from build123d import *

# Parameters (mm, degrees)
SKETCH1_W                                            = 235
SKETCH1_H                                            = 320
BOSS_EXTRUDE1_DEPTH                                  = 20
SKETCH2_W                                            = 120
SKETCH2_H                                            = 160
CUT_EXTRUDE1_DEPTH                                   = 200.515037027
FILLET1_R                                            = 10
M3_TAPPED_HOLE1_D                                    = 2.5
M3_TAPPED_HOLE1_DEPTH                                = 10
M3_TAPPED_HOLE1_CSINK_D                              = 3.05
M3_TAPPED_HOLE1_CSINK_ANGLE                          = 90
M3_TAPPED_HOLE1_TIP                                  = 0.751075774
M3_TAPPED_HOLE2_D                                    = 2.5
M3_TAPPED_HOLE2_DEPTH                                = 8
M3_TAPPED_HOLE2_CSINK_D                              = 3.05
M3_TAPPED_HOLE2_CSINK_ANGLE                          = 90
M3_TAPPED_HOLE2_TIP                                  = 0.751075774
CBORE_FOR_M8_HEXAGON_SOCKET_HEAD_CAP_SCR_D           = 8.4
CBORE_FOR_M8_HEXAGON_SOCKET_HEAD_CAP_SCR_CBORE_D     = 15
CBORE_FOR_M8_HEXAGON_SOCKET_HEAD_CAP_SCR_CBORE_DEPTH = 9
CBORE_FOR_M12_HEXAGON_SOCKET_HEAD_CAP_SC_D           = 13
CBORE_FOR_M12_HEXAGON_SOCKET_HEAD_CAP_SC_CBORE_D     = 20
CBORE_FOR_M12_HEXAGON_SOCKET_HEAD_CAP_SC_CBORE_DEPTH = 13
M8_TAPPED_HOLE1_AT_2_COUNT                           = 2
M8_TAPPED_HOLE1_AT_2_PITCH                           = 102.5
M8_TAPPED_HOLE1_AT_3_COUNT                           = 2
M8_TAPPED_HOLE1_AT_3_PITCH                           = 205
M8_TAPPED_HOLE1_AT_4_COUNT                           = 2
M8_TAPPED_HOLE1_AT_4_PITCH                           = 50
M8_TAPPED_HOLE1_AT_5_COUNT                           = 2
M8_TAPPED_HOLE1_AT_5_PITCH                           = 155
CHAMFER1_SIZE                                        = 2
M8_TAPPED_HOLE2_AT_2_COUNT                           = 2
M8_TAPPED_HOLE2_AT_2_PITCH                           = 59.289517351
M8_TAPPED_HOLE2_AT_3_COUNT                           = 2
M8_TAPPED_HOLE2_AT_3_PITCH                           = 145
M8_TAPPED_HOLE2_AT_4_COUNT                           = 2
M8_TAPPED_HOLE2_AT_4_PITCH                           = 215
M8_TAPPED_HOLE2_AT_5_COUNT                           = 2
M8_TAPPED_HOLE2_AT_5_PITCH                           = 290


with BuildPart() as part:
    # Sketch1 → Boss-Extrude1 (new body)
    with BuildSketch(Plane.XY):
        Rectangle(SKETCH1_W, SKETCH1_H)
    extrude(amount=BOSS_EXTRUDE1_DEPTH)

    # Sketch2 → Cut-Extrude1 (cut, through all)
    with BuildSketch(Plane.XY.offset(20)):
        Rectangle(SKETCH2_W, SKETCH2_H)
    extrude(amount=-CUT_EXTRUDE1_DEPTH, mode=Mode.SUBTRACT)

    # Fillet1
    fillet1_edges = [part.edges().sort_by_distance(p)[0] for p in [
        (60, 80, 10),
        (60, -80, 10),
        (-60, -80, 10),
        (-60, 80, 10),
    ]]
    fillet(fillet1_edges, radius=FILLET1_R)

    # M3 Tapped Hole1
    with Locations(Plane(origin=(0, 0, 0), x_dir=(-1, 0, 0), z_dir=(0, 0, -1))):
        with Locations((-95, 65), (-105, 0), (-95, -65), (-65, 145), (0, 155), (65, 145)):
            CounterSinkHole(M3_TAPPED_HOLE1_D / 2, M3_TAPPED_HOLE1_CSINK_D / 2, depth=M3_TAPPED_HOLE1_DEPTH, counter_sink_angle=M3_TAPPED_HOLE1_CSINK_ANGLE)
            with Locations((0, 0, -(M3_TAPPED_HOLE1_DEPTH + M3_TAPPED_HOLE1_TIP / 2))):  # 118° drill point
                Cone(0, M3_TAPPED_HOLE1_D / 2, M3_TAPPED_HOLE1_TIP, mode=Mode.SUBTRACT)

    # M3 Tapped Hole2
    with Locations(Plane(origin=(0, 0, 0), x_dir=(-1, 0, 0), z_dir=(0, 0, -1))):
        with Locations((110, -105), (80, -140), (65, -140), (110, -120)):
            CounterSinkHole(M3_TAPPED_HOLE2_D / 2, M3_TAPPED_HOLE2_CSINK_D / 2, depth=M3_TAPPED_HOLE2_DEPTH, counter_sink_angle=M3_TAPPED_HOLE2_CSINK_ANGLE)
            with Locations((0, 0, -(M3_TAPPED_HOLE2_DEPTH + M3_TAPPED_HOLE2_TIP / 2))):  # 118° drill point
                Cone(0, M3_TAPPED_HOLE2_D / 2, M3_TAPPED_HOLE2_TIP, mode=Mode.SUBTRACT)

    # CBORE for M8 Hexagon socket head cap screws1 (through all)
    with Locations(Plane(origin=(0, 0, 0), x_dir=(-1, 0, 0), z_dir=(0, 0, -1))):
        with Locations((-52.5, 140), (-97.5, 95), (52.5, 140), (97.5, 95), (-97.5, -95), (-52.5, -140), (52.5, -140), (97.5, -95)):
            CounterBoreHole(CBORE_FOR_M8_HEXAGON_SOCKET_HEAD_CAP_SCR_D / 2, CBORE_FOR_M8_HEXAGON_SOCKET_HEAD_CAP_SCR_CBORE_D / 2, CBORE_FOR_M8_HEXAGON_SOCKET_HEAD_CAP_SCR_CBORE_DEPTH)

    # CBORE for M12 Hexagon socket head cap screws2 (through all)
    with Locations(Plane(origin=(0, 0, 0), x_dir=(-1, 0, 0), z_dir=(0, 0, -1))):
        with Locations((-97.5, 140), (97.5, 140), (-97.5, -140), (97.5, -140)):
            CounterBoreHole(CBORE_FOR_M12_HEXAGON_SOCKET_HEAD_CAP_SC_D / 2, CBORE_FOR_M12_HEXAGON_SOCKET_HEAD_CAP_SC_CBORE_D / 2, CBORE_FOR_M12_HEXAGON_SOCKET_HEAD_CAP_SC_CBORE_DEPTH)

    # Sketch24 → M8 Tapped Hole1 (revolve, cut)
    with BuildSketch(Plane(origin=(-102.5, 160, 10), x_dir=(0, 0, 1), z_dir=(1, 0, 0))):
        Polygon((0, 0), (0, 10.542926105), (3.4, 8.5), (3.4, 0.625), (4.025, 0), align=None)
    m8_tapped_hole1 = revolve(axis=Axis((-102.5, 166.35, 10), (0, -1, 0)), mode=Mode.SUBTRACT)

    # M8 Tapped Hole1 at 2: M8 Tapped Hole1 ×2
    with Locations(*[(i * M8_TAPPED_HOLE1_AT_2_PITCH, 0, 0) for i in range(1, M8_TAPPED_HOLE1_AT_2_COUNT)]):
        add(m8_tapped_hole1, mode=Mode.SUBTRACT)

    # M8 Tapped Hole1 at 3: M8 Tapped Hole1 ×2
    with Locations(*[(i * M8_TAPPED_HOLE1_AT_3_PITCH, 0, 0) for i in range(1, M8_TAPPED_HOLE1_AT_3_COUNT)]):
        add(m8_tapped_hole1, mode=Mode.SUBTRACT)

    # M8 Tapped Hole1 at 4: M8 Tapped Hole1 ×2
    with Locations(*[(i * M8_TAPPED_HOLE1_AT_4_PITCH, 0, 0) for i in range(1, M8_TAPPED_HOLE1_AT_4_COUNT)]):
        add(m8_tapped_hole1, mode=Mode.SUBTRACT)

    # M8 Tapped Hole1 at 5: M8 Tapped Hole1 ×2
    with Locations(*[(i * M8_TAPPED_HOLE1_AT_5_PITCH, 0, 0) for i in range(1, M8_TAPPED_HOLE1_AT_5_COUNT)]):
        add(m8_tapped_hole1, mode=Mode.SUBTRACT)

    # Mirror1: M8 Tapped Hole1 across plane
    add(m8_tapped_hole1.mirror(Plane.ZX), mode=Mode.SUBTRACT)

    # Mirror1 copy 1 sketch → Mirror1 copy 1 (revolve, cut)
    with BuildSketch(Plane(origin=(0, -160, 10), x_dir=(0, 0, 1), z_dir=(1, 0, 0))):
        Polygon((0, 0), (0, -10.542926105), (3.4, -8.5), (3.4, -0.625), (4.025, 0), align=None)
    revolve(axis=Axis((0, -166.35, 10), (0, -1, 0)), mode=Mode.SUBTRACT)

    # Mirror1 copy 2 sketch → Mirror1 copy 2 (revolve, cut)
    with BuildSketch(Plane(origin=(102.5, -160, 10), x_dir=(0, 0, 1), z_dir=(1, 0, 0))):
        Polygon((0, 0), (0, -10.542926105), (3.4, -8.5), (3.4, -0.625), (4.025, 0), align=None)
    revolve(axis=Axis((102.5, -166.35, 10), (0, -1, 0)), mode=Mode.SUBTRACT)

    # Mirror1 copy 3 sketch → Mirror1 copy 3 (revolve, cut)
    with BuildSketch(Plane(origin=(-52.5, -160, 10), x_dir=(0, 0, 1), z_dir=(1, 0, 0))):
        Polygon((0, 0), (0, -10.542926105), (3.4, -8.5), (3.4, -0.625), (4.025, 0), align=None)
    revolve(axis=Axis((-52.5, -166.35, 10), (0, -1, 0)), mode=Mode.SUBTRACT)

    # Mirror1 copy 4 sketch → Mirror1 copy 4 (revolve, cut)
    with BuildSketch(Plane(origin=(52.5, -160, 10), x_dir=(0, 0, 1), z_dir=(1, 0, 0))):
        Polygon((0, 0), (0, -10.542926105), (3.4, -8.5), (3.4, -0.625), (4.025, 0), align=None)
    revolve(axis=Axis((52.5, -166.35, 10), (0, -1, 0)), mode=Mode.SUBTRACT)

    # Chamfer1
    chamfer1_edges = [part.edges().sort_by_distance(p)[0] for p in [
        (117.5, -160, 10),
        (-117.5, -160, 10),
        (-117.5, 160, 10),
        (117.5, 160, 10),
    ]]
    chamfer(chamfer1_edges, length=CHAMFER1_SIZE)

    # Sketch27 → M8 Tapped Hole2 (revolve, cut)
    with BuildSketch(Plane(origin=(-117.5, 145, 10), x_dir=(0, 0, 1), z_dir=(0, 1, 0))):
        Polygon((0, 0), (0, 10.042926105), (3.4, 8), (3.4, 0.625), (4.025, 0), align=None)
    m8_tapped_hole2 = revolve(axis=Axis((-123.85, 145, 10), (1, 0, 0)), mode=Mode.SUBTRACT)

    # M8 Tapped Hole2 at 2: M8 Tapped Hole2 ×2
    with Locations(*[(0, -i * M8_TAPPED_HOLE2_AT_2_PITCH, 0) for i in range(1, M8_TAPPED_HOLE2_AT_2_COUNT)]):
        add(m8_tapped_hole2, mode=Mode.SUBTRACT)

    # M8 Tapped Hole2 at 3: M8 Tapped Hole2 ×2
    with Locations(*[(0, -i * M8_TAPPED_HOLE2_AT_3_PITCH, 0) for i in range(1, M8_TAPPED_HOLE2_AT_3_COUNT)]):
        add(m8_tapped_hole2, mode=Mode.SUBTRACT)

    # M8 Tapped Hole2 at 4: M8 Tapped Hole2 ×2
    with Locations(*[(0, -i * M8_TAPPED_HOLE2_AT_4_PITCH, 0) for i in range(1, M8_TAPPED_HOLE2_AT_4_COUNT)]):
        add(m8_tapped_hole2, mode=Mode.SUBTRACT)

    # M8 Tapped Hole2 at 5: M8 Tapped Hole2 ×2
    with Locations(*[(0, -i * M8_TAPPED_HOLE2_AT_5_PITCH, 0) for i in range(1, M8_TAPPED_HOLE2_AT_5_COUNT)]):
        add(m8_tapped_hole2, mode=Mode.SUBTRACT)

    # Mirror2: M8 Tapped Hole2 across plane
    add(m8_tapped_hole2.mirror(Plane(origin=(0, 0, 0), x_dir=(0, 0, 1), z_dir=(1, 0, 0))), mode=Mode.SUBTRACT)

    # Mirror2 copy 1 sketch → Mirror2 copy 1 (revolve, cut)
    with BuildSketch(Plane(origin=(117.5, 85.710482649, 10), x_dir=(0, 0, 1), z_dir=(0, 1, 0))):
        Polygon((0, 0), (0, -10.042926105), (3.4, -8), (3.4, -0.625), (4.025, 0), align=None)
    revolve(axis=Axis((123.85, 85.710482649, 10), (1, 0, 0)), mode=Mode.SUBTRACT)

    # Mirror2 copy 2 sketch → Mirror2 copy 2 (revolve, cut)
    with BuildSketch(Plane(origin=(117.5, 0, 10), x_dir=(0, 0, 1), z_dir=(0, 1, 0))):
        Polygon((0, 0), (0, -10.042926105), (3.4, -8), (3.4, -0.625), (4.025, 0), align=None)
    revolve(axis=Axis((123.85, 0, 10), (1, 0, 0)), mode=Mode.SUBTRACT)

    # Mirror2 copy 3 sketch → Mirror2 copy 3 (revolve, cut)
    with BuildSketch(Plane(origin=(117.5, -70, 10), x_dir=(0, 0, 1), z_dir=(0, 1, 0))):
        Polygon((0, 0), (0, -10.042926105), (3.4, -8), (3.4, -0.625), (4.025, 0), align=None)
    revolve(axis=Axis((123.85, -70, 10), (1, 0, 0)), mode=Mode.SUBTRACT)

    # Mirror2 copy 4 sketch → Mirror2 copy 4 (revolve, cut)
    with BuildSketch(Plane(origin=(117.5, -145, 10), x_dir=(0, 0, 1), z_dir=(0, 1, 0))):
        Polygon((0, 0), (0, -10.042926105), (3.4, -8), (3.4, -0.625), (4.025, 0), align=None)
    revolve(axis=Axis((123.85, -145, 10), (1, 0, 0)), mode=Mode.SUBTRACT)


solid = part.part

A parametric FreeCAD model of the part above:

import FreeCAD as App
import Part
import Sketcher
from FreeCAD import Vector
Q = App.Units.Quantity


def edges_at(feature, points):
    """Names of the edges that pass closest to the given points."""
    edges = feature.Shape.Edges
    near = lambda p: min(range(len(edges)), key=lambda i: edges[i].distToShape(Part.Vertex(*p))[0])
    return sorted({f"Edge{near(p) + 1}" for p in points})

doc = App.newDocument("Part")
body = doc.addObject("PartDesign::Body", "Body")

# Sketch on XY plane
sketch1 = body.newObject("Sketcher::SketchObject", "Sketch")
sketch1.AttachmentSupport = (doc.getObject("XY_Plane"), [""])
sketch1.MapMode = "FlatFace"
sketch1.addGeometry([
    Part.LineSegment(Vector(-118, 160, 0), Vector(-118, -160, 0)),
    Part.LineSegment(Vector(-118, -160, 0), Vector(118, -160, 0)),
    Part.LineSegment(Vector(118, -160, 0), Vector(118, 160, 0)),
    Part.LineSegment(Vector(118, 160, 0), Vector(-118, 160, 0)),
], False)
sketch1.addConstraint([
    Sketcher.Constraint("Coincident", 0, 2, 1, 1),
    Sketcher.Constraint("Coincident", 1, 2, 2, 1),
    Sketcher.Constraint("Coincident", 2, 2, 3, 1),
    Sketcher.Constraint("Coincident", 3, 2, 0, 1),
    Sketcher.Constraint("Vertical", 0),
    Sketcher.Constraint("Horizontal", 1),
    Sketcher.Constraint("Vertical", 2),
    Sketcher.Constraint("Horizontal", 3),
    Sketcher.Constraint("Symmetric", 0, 2, 2, 2, -1, 1),
    Sketcher.Constraint("DistanceX", 1, 1, 1, 2, 235.0),
    Sketcher.Constraint("DistanceY", 0, 2, 0, 1, 320.0),
])
pad1 = body.newObject("PartDesign::Pad", "Pad")
pad1.Profile = sketch1
pad1.Length = 20

# Sketch on XY plane
sketch2 = body.newObject("Sketcher::SketchObject", "Sketch001")
sketch2.AttachmentSupport = (doc.getObject("XY_Plane"), [""])
sketch2.MapMode = "FlatFace"
sketch2.AttachmentOffset = App.Placement(Vector(0, 0, 20), App.Rotation())
sketch2.addGeometry([
    Part.LineSegment(Vector(-60, 80, 0), Vector(-60, -80, 0)),
    Part.LineSegment(Vector(-60, -80, 0), Vector(60, -80, 0)),
    Part.LineSegment(Vector(60, -80, 0), Vector(60, 80, 0)),
    Part.LineSegment(Vector(60, 80, 0), Vector(-60, 80, 0)),
], False)
sketch2.addConstraint([
    Sketcher.Constraint("Coincident", 0, 2, 1, 1),
    Sketcher.Constraint("Coincident", 1, 2, 2, 1),
    Sketcher.Constraint("Coincident", 2, 2, 3, 1),
    Sketcher.Constraint("Coincident", 3, 2, 0, 1),
    Sketcher.Constraint("Vertical", 0),
    Sketcher.Constraint("Horizontal", 1),
    Sketcher.Constraint("Vertical", 2),
    Sketcher.Constraint("Horizontal", 3),
    Sketcher.Constraint("Symmetric", 0, 2, 2, 2, -1, 1),
    Sketcher.Constraint("DistanceX", 1, 1, 1, 2, 120.0),
    Sketcher.Constraint("DistanceY", 0, 2, 0, 1, 160.0),
])
pocket1 = body.newObject("PartDesign::Pocket", "Pocket")
pocket1.Profile = sketch2
pocket1.Type = "ThroughAll"
doc.recompute()

fillet = body.newObject("PartDesign::Fillet", "Fillet")
fillet.Base = (pocket1, edges_at(pocket1, [
    (60, 80, 10),
    (60, -80, 10),
    (-60, -80, 10),
    (-60, 80, 10),
]))
fillet.Radius = 10

# Sketch on XY plane
sketch3 = body.newObject("Sketcher::SketchObject", "Sketch002")
sketch3.AttachmentSupport = (doc.getObject("XY_Plane"), [""])
sketch3.MapMode = "FlatFace"
sketch3.addGeometry([
    Part.Circle(Vector(95, 65, 0), Vector(0, 0, 1), 1.2),  # 0
    Part.Circle(Vector(105, 0, 0), Vector(0, 0, 1), 1.2),  # 1
    Part.Circle(Vector(95, -65, 0), Vector(0, 0, 1), 1.2),  # 2
    Part.Circle(Vector(65, 145, 0), Vector(0, 0, 1), 1.2),  # 3
    Part.Circle(Vector(0, 155, 0), Vector(0, 0, 1), 1.2),  # 4
    Part.Circle(Vector(-65, 145, 0), Vector(0, 0, 1), 1.2),  # 5
], False)
sketch3.addConstraint([
    Sketcher.Constraint("Equal", 0, 1),
    Sketcher.Constraint("Equal", 1, 2),
    Sketcher.Constraint("Equal", 2, 3),
    Sketcher.Constraint("Equal", 3, 4),
    Sketcher.Constraint("Equal", 4, 5),
    Sketcher.Constraint("Symmetric", 3, 3, 5, 3, -2),
    Sketcher.Constraint("Symmetric", 0, 3, 2, 3, -1),
    Sketcher.Constraint("PointOnObject", 1, 3, -1),
    Sketcher.Constraint("PointOnObject", 4, 3, -2),
    Sketcher.Constraint("Diameter", 0, 2.5),
    Sketcher.Constraint("DistanceX", -1, 1, 0, 3, 95.0),
    Sketcher.Constraint("DistanceY", -1, 1, 0, 3, 65.0),
    Sketcher.Constraint("DistanceX", -1, 1, 1, 3, 105.0),
    Sketcher.Constraint("DistanceX", -1, 1, 3, 3, 65.0),
    Sketcher.Constraint("DistanceY", -1, 1, 3, 3, 145.0),
    Sketcher.Constraint("DistanceY", -1, 1, 4, 3, 155.0),
])
doc.recompute()
hole = body.newObject("PartDesign::Hole", "Hole")
hole.Profile = sketch3
hole.ThreadType = "None"
hole.Diameter = 2.5
hole.DepthType = "Dimension"
hole.Depth = 10
hole.DrillPoint = "Angled"
hole.DrillPointAngle = 118
hole.HoleCutType = "Countersink"
hole.HoleCutDiameter = 3.05
hole.HoleCutCountersinkAngle = 90
hole.Reversed = True

# Sketch on XY plane
sketch4 = body.newObject("Sketcher::SketchObject", "Sketch003")
sketch4.AttachmentSupport = (doc.getObject("XY_Plane"), [""])
sketch4.MapMode = "FlatFace"
sketch4.addGeometry([
    Part.Circle(Vector(-110, -105, 0), Vector(0, 0, 1), 1.2),
    Part.Circle(Vector(-80, -140, 0), Vector(0, 0, 1), 1.2),
    Part.Circle(Vector(-65, -140, 0), Vector(0, 0, 1), 1.2),
    Part.Circle(Vector(-110, -120, 0), Vector(0, 0, 1), 1.2),
], False)
sketch4.addConstraint([
    Sketcher.Constraint("Equal", 0, 1),
    Sketcher.Constraint("Equal", 1, 2),
    Sketcher.Constraint("Equal", 2, 3),
    Sketcher.Constraint("Horizontal", 1, 3, 2, 3),
    Sketcher.Constraint("Vertical", 0, 3, 3, 3),
    Sketcher.Constraint("Diameter", 0, 2.5),
    Sketcher.Constraint("DistanceX", 0, 3, -1, 1, 110.0),
    Sketcher.Constraint("DistanceY", 0, 3, -1, 1, 105.0),
    Sketcher.Constraint("DistanceX", 1, 3, -1, 1, 80.0),
    Sketcher.Constraint("DistanceY", 1, 3, -1, 1, 140.0),
    Sketcher.Constraint("DistanceX", 2, 3, -1, 1, 65.0),
    Sketcher.Constraint("DistanceY", 3, 3, -1, 1, 120.0),
])
doc.recompute()
hole2 = body.newObject("PartDesign::Hole", "Hole001")
hole2.Profile = sketch4
hole2.ThreadType = "None"
hole2.Diameter = 2.5
hole2.DepthType = "Dimension"
hole2.Depth = 8
hole2.DrillPoint = "Angled"
hole2.DrillPointAngle = 118
hole2.HoleCutType = "Countersink"
hole2.HoleCutDiameter = 3.05
hole2.HoleCutCountersinkAngle = 90
hole2.Reversed = True

# Sketch on XY plane
sketch5 = body.newObject("Sketcher::SketchObject", "Sketch004")
sketch5.AttachmentSupport = (doc.getObject("XY_Plane"), [""])
sketch5.MapMode = "FlatFace"
sketch5.addGeometry([
    Part.Circle(Vector(52.5, 140, 0), Vector(0, 0, 1), 4.2),  # 0
    Part.Circle(Vector(97.5, 95, 0), Vector(0, 0, 1), 4.2),  # 1
    Part.Circle(Vector(-52.5, 140, 0), Vector(0, 0, 1), 4.2),  # 2
    Part.Circle(Vector(-97.5, 95, 0), Vector(0, 0, 1), 4.2),  # 3
    Part.Circle(Vector(97.5, -95, 0), Vector(0, 0, 1), 4.2),  # 4
    Part.Circle(Vector(52.5, -140, 0), Vector(0, 0, 1), 4.2),  # 5
    Part.Circle(Vector(-52.5, -140, 0), Vector(0, 0, 1), 4.2),  # 6
    Part.Circle(Vector(-97.5, -95, 0), Vector(0, 0, 1), 4.2),  # 7
], False)
sketch5.addConstraint([
    Sketcher.Constraint("Equal", 0, 1),
    Sketcher.Constraint("Equal", 1, 2),
    Sketcher.Constraint("Equal", 2, 3),
    Sketcher.Constraint("Equal", 3, 4),
    Sketcher.Constraint("Equal", 4, 5),
    Sketcher.Constraint("Equal", 5, 6),
    Sketcher.Constraint("Equal", 6, 7),
    Sketcher.Constraint("Symmetric", 3, 3, 4, 3, -1, 1),
    Sketcher.Constraint("Symmetric", 2, 3, 5, 3, -1, 1),
    Sketcher.Constraint("Symmetric", 0, 3, 6, 3, -1, 1),
    Sketcher.Constraint("Symmetric", 1, 3, 7, 3, -1, 1),
    Sketcher.Constraint("Symmetric", 0, 3, 2, 3, -2),
    Sketcher.Constraint("Symmetric", 1, 3, 3, 3, -2),
    Sketcher.Constraint("Diameter", 0, 8.4),
    Sketcher.Constraint("DistanceY", -1, 1, 0, 3, 140.0),
    Sketcher.Constraint("DistanceY", -1, 1, 1, 3, 95.0),
    Sketcher.Constraint("DistanceX", 0, 3, 1, 3, 45.0),
    Sketcher.Constraint("DistanceX", 2, 3, 0, 3, 105.0),
])
doc.recompute()
hole3 = body.newObject("PartDesign::Hole", "Hole002")
hole3.Profile = sketch5
hole3.ThreadType = "None"
hole3.Diameter = 8.4
hole3.DepthType = "ThroughAll"
hole3.HoleCutType = "Counterbore"
hole3.HoleCutDiameter = 15
hole3.HoleCutDepth = 9
hole3.Reversed = True

# Sketch on XY plane
sketch6 = body.newObject("Sketcher::SketchObject", "Sketch005")
sketch6.AttachmentSupport = (doc.getObject("XY_Plane"), [""])
sketch6.MapMode = "FlatFace"
sketch6.addGeometry([
    Part.Circle(Vector(98, 140, 0), Vector(0, 0, 1), 6),
    Part.Circle(Vector(-98, 140, 0), Vector(0, 0, 1), 6),
    Part.Circle(Vector(98, -140, 0), Vector(0, 0, 1), 6),
    Part.Circle(Vector(-98, -140, 0), Vector(0, 0, 1), 6),
], False)
sketch6.addConstraint([
    Sketcher.Constraint("Equal", 0, 1),
    Sketcher.Constraint("Equal", 1, 2),
    Sketcher.Constraint("Equal", 2, 3),
    Sketcher.Constraint("Symmetric", 1, 3, 2, 3, -1, 1),
    Sketcher.Constraint("Symmetric", 0, 3, 3, 3, -1, 1),
    Sketcher.Constraint("Symmetric", 0, 3, 1, 3, -2),
    Sketcher.Constraint("Diameter", 0, 13.0),
    Sketcher.Constraint("DistanceY", -1, 1, 0, 3, 140.0),
    Sketcher.Constraint("DistanceX", 1, 3, 0, 3, 195.0),
])
doc.recompute()
hole4 = body.newObject("PartDesign::Hole", "Hole003")
hole4.Profile = sketch6
hole4.ThreadType = "None"
hole4.Diameter = 13
hole4.DepthType = "ThroughAll"
hole4.HoleCutType = "Counterbore"
hole4.HoleCutDiameter = 20
hole4.HoleCutDepth = 13
hole4.Reversed = True

# Sketch on YZ plane
sketch7 = body.newObject("Sketcher::SketchObject", "Sketch006")
sketch7.AttachmentSupport = (doc.getObject("YZ_Plane"), [""])
sketch7.MapMode = "FlatFace"
sketch7.AttachmentOffset = App.Placement(Vector(0, 0, -102.5), App.Rotation())
sketch7.addGeometry([
    Part.LineSegment(Vector(149.5, 10, 0), Vector(160, 10, 0)),  # 0
    Part.LineSegment(Vector(160, 10, 0), Vector(160, 14, 0)),  # 1
    Part.LineSegment(Vector(160, 14, 0), Vector(159.4, 13.4, 0)),  # 2
    Part.LineSegment(Vector(159.4, 13.4, 0), Vector(151.5, 13.4, 0)),  # 3
    Part.LineSegment(Vector(151.5, 13.4, 0), Vector(149.5, 10, 0)),  # 4
], False)
sketch7.addGeometry(Part.LineSegment(Vector(160, 10, 0), Vector(149.5, 10, 0)), True)  # axis
sketch7.addConstraint([
    Sketcher.Constraint("Coincident", 0, 2, 1, 1),
    Sketcher.Constraint("Coincident", 1, 2, 2, 1),
    Sketcher.Constraint("Coincident", 2, 2, 3, 1),
    Sketcher.Constraint("Coincident", 3, 2, 4, 1),
    Sketcher.Constraint("Coincident", 4, 2, 0, 1),
    Sketcher.Constraint("Horizontal", 0),
    Sketcher.Constraint("Vertical", 1),
    Sketcher.Constraint("Horizontal", 3),
    Sketcher.Constraint("Horizontal", 5),
    Sketcher.Constraint("Coincident", 5, 1, 0, 2),
    Sketcher.Constraint("Equal", 0, 5),
    Sketcher.Constraint("Angle", 2, Q("-135 deg")),
    Sketcher.Constraint("Angle", 4, Q("-121 deg")),
    Sketcher.Constraint("DistanceX", -1, 1, 0, 2, 160.0),
    Sketcher.Constraint("DistanceY", -1, 1, 0, 2, 10.0),
    Sketcher.Constraint("DistanceY", -1, 1, 2, 2, 13.4),
    Sketcher.Constraint("DistanceX", -1, 1, 3, 2, 151.5),
    Sketcher.Constraint("DistanceX", 3, 2, 3, 1, 7.875),
])
groove = body.newObject("PartDesign::Groove", "Groove")
groove.Profile = sketch7
groove.ReferenceAxis = (sketch7, ["Axis0"])
groove.Angle = 360
doc.recompute()

linearpattern = body.newObject("PartDesign::LinearPattern", "LinearPattern")
linearpattern.Originals = [groove]
linearpattern.Direction = (doc.getObject("X_Axis"), [""])
linearpattern.Mode = "offset"
linearpattern.Offset = 102.5
linearpattern.Occurrences = 2
body.Tip = linearpattern
doc.recompute()

linearpattern2 = body.newObject("PartDesign::LinearPattern", "LinearPattern001")
linearpattern2.Originals = [groove]
linearpattern2.Direction = (doc.getObject("X_Axis"), [""])
linearpattern2.Mode = "offset"
linearpattern2.Offset = 205
linearpattern2.Occurrences = 2
body.Tip = linearpattern2
doc.recompute()

linearpattern3 = body.newObject("PartDesign::LinearPattern", "LinearPattern002")
linearpattern3.Originals = [groove]
linearpattern3.Direction = (doc.getObject("X_Axis"), [""])
linearpattern3.Mode = "offset"
linearpattern3.Offset = 50
linearpattern3.Occurrences = 2
body.Tip = linearpattern3
doc.recompute()

linearpattern4 = body.newObject("PartDesign::LinearPattern", "LinearPattern003")
linearpattern4.Originals = [groove]
linearpattern4.Direction = (doc.getObject("X_Axis"), [""])
linearpattern4.Mode = "offset"
linearpattern4.Offset = 155
linearpattern4.Occurrences = 2
body.Tip = linearpattern4
doc.recompute()

mirrored = body.newObject("PartDesign::Mirrored", "Mirrored")
mirrored.Originals = [groove]
mirrored.MirrorPlane = (doc.getObject("XZ_Plane"), [""])
body.Tip = mirrored

# Sketch on YZ plane
sketch8 = body.newObject("Sketcher::SketchObject", "Sketch007")
sketch8.AttachmentSupport = (doc.getObject("YZ_Plane"), [""])
sketch8.MapMode = "FlatFace"
sketch8.addGeometry([
    Part.LineSegment(Vector(-160, 10, 0), Vector(-149.5, 10, 0)),  # 0
    Part.LineSegment(Vector(-149.5, 10, 0), Vector(-151.5, 13.4, 0)),  # 1
    Part.LineSegment(Vector(-151.5, 13.4, 0), Vector(-159.4, 13.4, 0)),  # 2
    Part.LineSegment(Vector(-159.4, 13.4, 0), Vector(-160, 14, 0)),  # 3
    Part.LineSegment(Vector(-160, 14, 0), Vector(-160, 10, 0)),  # 4
], False)
sketch8.addGeometry(Part.LineSegment(Vector(-149.5, 10, 0), Vector(-160, 10, 0)), True)  # axis
sketch8.addConstraint([
    Sketcher.Constraint("Coincident", 0, 2, 1, 1),
    Sketcher.Constraint("Coincident", 1, 2, 2, 1),
    Sketcher.Constraint("Coincident", 2, 2, 3, 1),
    Sketcher.Constraint("Coincident", 3, 2, 4, 1),
    Sketcher.Constraint("Coincident", 4, 2, 0, 1),
    Sketcher.Constraint("Horizontal", 0),
    Sketcher.Constraint("Horizontal", 2),
    Sketcher.Constraint("Vertical", 4),
    Sketcher.Constraint("Horizontal", 5),
    Sketcher.Constraint("Coincident", 5, 1, 0, 2),
    Sketcher.Constraint("Vertical", 3, 2, 5, 2),
    Sketcher.Constraint("Angle", 1, Q("121 deg")),
    Sketcher.Constraint("Angle", 3, Q("135 deg")),
    Sketcher.Constraint("DistanceY", -1, 1, 0, 2, 10.0),
    Sketcher.Constraint("DistanceX", 3, 2, -1, 1, 160.0),
    Sketcher.Constraint("DistanceX", 1, 2, -1, 1, 151.5),
    Sketcher.Constraint("DistanceY", -1, 1, 1, 2, 13.4),
    Sketcher.Constraint("DistanceX", 2, 2, 2, 1, 7.875),
])
groove2 = body.newObject("PartDesign::Groove", "Groove001")
groove2.Profile = sketch8
groove2.ReferenceAxis = (sketch8, ["Axis0"])
groove2.Angle = 360

# Sketch on YZ plane
sketch9 = body.newObject("Sketcher::SketchObject", "Sketch008")
sketch9.AttachmentSupport = (doc.getObject("YZ_Plane"), [""])
sketch9.MapMode = "FlatFace"
sketch9.AttachmentOffset = App.Placement(Vector(0, 0, 102.5), App.Rotation())
sketch9.addGeometry([
    Part.LineSegment(Vector(-160, 10, 0), Vector(-149.5, 10, 0)),  # 0
    Part.LineSegment(Vector(-149.5, 10, 0), Vector(-151.5, 13.4, 0)),  # 1
    Part.LineSegment(Vector(-151.5, 13.4, 0), Vector(-159.4, 13.4, 0)),  # 2
    Part.LineSegment(Vector(-159.4, 13.4, 0), Vector(-160, 14, 0)),  # 3
    Part.LineSegment(Vector(-160, 14, 0), Vector(-160, 10, 0)),  # 4
], False)
sketch9.addGeometry(Part.LineSegment(Vector(-149.5, 10, 0), Vector(-160, 10, 0)), True)  # axis
sketch9.addConstraint([
    Sketcher.Constraint("Coincident", 0, 2, 1, 1),
    Sketcher.Constraint("Coincident", 1, 2, 2, 1),
    Sketcher.Constraint("Coincident", 2, 2, 3, 1),
    Sketcher.Constraint("Coincident", 3, 2, 4, 1),
    Sketcher.Constraint("Coincident", 4, 2, 0, 1),
    Sketcher.Constraint("Horizontal", 0),
    Sketcher.Constraint("Horizontal", 2),
    Sketcher.Constraint("Vertical", 4),
    Sketcher.Constraint("Horizontal", 5),
    Sketcher.Constraint("Coincident", 5, 1, 0, 2),
    Sketcher.Constraint("Vertical", 3, 2, 5, 2),
    Sketcher.Constraint("Angle", 1, Q("121 deg")),
    Sketcher.Constraint("Angle", 3, Q("135 deg")),
    Sketcher.Constraint("DistanceY", -1, 1, 0, 2, 10.0),
    Sketcher.Constraint("DistanceX", 3, 2, -1, 1, 160.0),
    Sketcher.Constraint("DistanceX", 1, 2, -1, 1, 151.5),
    Sketcher.Constraint("DistanceY", -1, 1, 1, 2, 13.4),
    Sketcher.Constraint("DistanceX", 2, 2, 2, 1, 7.875),
])
groove3 = body.newObject("PartDesign::Groove", "Groove002")
groove3.Profile = sketch9
groove3.ReferenceAxis = (sketch9, ["Axis0"])
groove3.Angle = 360

# Sketch on YZ plane
sketch10 = body.newObject("Sketcher::SketchObject", "Sketch009")
sketch10.AttachmentSupport = (doc.getObject("YZ_Plane"), [""])
sketch10.MapMode = "FlatFace"
sketch10.AttachmentOffset = App.Placement(Vector(0, 0, -52.5), App.Rotation())
sketch10.addGeometry([
    Part.LineSegment(Vector(-160, 10, 0), Vector(-149.5, 10, 0)),  # 0
    Part.LineSegment(Vector(-149.5, 10, 0), Vector(-151.5, 13.4, 0)),  # 1
    Part.LineSegment(Vector(-151.5, 13.4, 0), Vector(-159.4, 13.4, 0)),  # 2
    Part.LineSegment(Vector(-159.4, 13.4, 0), Vector(-160, 14, 0)),  # 3
    Part.LineSegment(Vector(-160, 14, 0), Vector(-160, 10, 0)),  # 4
], False)
sketch10.addGeometry(Part.LineSegment(Vector(-149.5, 10, 0), Vector(-160, 10, 0)), True)  # axis
sketch10.addConstraint([
    Sketcher.Constraint("Coincident", 0, 2, 1, 1),
    Sketcher.Constraint("Coincident", 1, 2, 2, 1),
    Sketcher.Constraint("Coincident", 2, 2, 3, 1),
    Sketcher.Constraint("Coincident", 3, 2, 4, 1),
    Sketcher.Constraint("Coincident", 4, 2, 0, 1),
    Sketcher.Constraint("Horizontal", 0),
    Sketcher.Constraint("Horizontal", 2),
    Sketcher.Constraint("Vertical", 4),
    Sketcher.Constraint("Horizontal", 5),
    Sketcher.Constraint("Coincident", 5, 1, 0, 2),
    Sketcher.Constraint("Vertical", 3, 2, 5, 2),
    Sketcher.Constraint("Angle", 1, Q("121 deg")),
    Sketcher.Constraint("Angle", 3, Q("135 deg")),
    Sketcher.Constraint("DistanceY", -1, 1, 0, 2, 10.0),
    Sketcher.Constraint("DistanceX", 3, 2, -1, 1, 160.0),
    Sketcher.Constraint("DistanceX", 1, 2, -1, 1, 151.5),
    Sketcher.Constraint("DistanceY", -1, 1, 1, 2, 13.4),
    Sketcher.Constraint("DistanceX", 2, 2, 2, 1, 7.875),
])
groove4 = body.newObject("PartDesign::Groove", "Groove003")
groove4.Profile = sketch10
groove4.ReferenceAxis = (sketch10, ["Axis0"])
groove4.Angle = 360

# Sketch on YZ plane
sketch11 = body.newObject("Sketcher::SketchObject", "Sketch010")
sketch11.AttachmentSupport = (doc.getObject("YZ_Plane"), [""])
sketch11.MapMode = "FlatFace"
sketch11.AttachmentOffset = App.Placement(Vector(0, 0, 52.5), App.Rotation())
sketch11.addGeometry([
    Part.LineSegment(Vector(-160, 10, 0), Vector(-149.5, 10, 0)),  # 0
    Part.LineSegment(Vector(-149.5, 10, 0), Vector(-151.5, 13.4, 0)),  # 1
    Part.LineSegment(Vector(-151.5, 13.4, 0), Vector(-159.4, 13.4, 0)),  # 2
    Part.LineSegment(Vector(-159.4, 13.4, 0), Vector(-160, 14, 0)),  # 3
    Part.LineSegment(Vector(-160, 14, 0), Vector(-160, 10, 0)),  # 4
], False)
sketch11.addGeometry(Part.LineSegment(Vector(-149.5, 10, 0), Vector(-160, 10, 0)), True)  # axis
sketch11.addConstraint([
    Sketcher.Constraint("Coincident", 0, 2, 1, 1),
    Sketcher.Constraint("Coincident", 1, 2, 2, 1),
    Sketcher.Constraint("Coincident", 2, 2, 3, 1),
    Sketcher.Constraint("Coincident", 3, 2, 4, 1),
    Sketcher.Constraint("Coincident", 4, 2, 0, 1),
    Sketcher.Constraint("Horizontal", 0),
    Sketcher.Constraint("Horizontal", 2),
    Sketcher.Constraint("Vertical", 4),
    Sketcher.Constraint("Horizontal", 5),
    Sketcher.Constraint("Coincident", 5, 1, 0, 2),
    Sketcher.Constraint("Vertical", 3, 2, 5, 2),
    Sketcher.Constraint("Angle", 1, Q("121 deg")),
    Sketcher.Constraint("Angle", 3, Q("135 deg")),
    Sketcher.Constraint("DistanceY", -1, 1, 0, 2, 10.0),
    Sketcher.Constraint("DistanceX", 3, 2, -1, 1, 160.0),
    Sketcher.Constraint("DistanceX", 1, 2, -1, 1, 151.5),
    Sketcher.Constraint("DistanceY", -1, 1, 1, 2, 13.4),
    Sketcher.Constraint("DistanceX", 2, 2, 2, 1, 7.875),
])
groove5 = body.newObject("PartDesign::Groove", "Groove004")
groove5.Profile = sketch11
groove5.ReferenceAxis = (sketch11, ["Axis0"])
groove5.Angle = 360
doc.recompute()

chamfer = body.newObject("PartDesign::Chamfer", "Chamfer")
chamfer.Base = (groove5, edges_at(groove5, [
    (117.5, -160, 10),
    (-117.5, -160, 10),
    (-117.5, 160, 10),
    (117.5, 160, 10),
]))
chamfer.Size = 2

# Sketch on XZ plane
sketch12 = body.newObject("Sketcher::SketchObject", "Sketch011")
sketch12.AttachmentSupport = (doc.getObject("XZ_Plane"), [""])
sketch12.MapMode = "FlatFace"
sketch12.AttachmentOffset = App.Placement(Vector(0, 0, -145), App.Rotation())
sketch12.addGeometry([
    Part.LineSegment(Vector(-107.5, 10, 0), Vector(-117.5, 10, 0)),  # 0
    Part.LineSegment(Vector(-117.5, 10, 0), Vector(-117.5, 14, 0)),  # 1
    Part.LineSegment(Vector(-117.5, 14, 0), Vector(-116.9, 13.4, 0)),  # 2
    Part.LineSegment(Vector(-116.9, 13.4, 0), Vector(-109.5, 13.4, 0)),  # 3
    Part.LineSegment(Vector(-109.5, 13.4, 0), Vector(-107.5, 10, 0)),  # 4
], False)
sketch12.addGeometry(Part.LineSegment(Vector(-117.5, 10, 0), Vector(-107.5, 10, 0)), True)  # axis
sketch12.addConstraint([
    Sketcher.Constraint("Coincident", 0, 2, 1, 1),
    Sketcher.Constraint("Coincident", 1, 2, 2, 1),
    Sketcher.Constraint("Coincident", 2, 2, 3, 1),
    Sketcher.Constraint("Coincident", 3, 2, 4, 1),
    Sketcher.Constraint("Coincident", 4, 2, 0, 1),
    Sketcher.Constraint("Horizontal", 0),
    Sketcher.Constraint("Vertical", 1),
    Sketcher.Constraint("Horizontal", 3),
    Sketcher.Constraint("Horizontal", 5),
    Sketcher.Constraint("Coincident", 5, 1, 0, 2),
    Sketcher.Constraint("Equal", 0, 5),
    Sketcher.Constraint("Angle", 2, Q("-45 deg")),
    Sketcher.Constraint("Angle", 4, Q("-59 deg")),
    Sketcher.Constraint("DistanceY", -1, 1, 0, 2, 10.0),
    Sketcher.Constraint("DistanceX", 1, 2, 3, 2, 8.0),
    Sketcher.Constraint("DistanceX", 0, 2, -1, 1, 117.5),
    Sketcher.Constraint("DistanceY", -1, 1, 2, 2, 13.4),
    Sketcher.Constraint("DistanceX", 3, 1, 3, 2, 7.375),
])
groove6 = body.newObject("PartDesign::Groove", "Groove005")
groove6.Profile = sketch12
groove6.ReferenceAxis = (sketch12, ["Axis0"])
groove6.Angle = 360
doc.recompute()

linearpattern5 = body.newObject("PartDesign::LinearPattern", "LinearPattern004")
linearpattern5.Originals = [groove6]
linearpattern5.Direction = (doc.getObject("Y_Axis"), [""])
linearpattern5.Mode = "offset"
linearpattern5.Offset = 59.289517
linearpattern5.Occurrences = 2
linearpattern5.Reversed = True
body.Tip = linearpattern5
doc.recompute()

linearpattern6 = body.newObject("PartDesign::LinearPattern", "LinearPattern005")
linearpattern6.Originals = [groove6]
linearpattern6.Direction = (doc.getObject("Y_Axis"), [""])
linearpattern6.Mode = "offset"
linearpattern6.Offset = 145
linearpattern6.Occurrences = 2
linearpattern6.Reversed = True
body.Tip = linearpattern6
doc.recompute()

linearpattern7 = body.newObject("PartDesign::LinearPattern", "LinearPattern006")
linearpattern7.Originals = [groove6]
linearpattern7.Direction = (doc.getObject("Y_Axis"), [""])
linearpattern7.Mode = "offset"
linearpattern7.Offset = 215
linearpattern7.Occurrences = 2
linearpattern7.Reversed = True
body.Tip = linearpattern7
doc.recompute()

linearpattern8 = body.newObject("PartDesign::LinearPattern", "LinearPattern007")
linearpattern8.Originals = [groove6]
linearpattern8.Direction = (doc.getObject("Y_Axis"), [""])
linearpattern8.Mode = "offset"
linearpattern8.Offset = 290
linearpattern8.Occurrences = 2
linearpattern8.Reversed = True
body.Tip = linearpattern8
doc.recompute()

mirrored2 = body.newObject("PartDesign::Mirrored", "Mirrored001")
mirrored2.Originals = [groove6]
mirrored2.MirrorPlane = (doc.getObject("YZ_Plane"), [""])
body.Tip = mirrored2

# Sketch on XZ plane
sketch13 = body.newObject("Sketcher::SketchObject", "Sketch012")
sketch13.AttachmentSupport = (doc.getObject("XZ_Plane"), [""])
sketch13.MapMode = "FlatFace"
sketch13.AttachmentOffset = App.Placement(Vector(0, 0, -85.710483), App.Rotation())
sketch13.addGeometry([
    Part.LineSegment(Vector(117.5, 10, 0), Vector(107.5, 10, 0)),  # 0
    Part.LineSegment(Vector(107.5, 10, 0), Vector(109.5, 13.4, 0)),  # 1
    Part.LineSegment(Vector(109.5, 13.4, 0), Vector(116.9, 13.4, 0)),  # 2
    Part.LineSegment(Vector(116.9, 13.4, 0), Vector(117.5, 14, 0)),  # 3
    Part.LineSegment(Vector(117.5, 14, 0), Vector(117.5, 10, 0)),  # 4
], False)
sketch13.addGeometry(Part.LineSegment(Vector(107.5, 10, 0), Vector(117.5, 10, 0)), True)  # axis
sketch13.addConstraint([
    Sketcher.Constraint("Coincident", 0, 2, 1, 1),
    Sketcher.Constraint("Coincident", 1, 2, 2, 1),
    Sketcher.Constraint("Coincident", 2, 2, 3, 1),
    Sketcher.Constraint("Coincident", 3, 2, 4, 1),
    Sketcher.Constraint("Coincident", 4, 2, 0, 1),
    Sketcher.Constraint("Horizontal", 0),
    Sketcher.Constraint("Horizontal", 2),
    Sketcher.Constraint("Vertical", 4),
    Sketcher.Constraint("Horizontal", 5),
    Sketcher.Constraint("Coincident", 5, 1, 0, 2),
    Sketcher.Constraint("Vertical", 3, 2, 5, 2),
    Sketcher.Constraint("Angle", 1, Q("59 deg")),
    Sketcher.Constraint("Angle", 3, Q("45 deg")),
    Sketcher.Constraint("DistanceY", -1, 1, 0, 2, 10.0),
    Sketcher.Constraint("DistanceX", 1, 2, 3, 2, 8.0),
    Sketcher.Constraint("DistanceX", -1, 1, 1, 2, 109.5),
    Sketcher.Constraint("DistanceY", -1, 1, 1, 2, 13.4),
    Sketcher.Constraint("DistanceX", 2, 1, 2, 2, 7.375),
])
groove7 = body.newObject("PartDesign::Groove", "Groove006")
groove7.Profile = sketch13
groove7.ReferenceAxis = (sketch13, ["Axis0"])
groove7.Angle = 360

# Sketch on XZ plane
sketch14 = body.newObject("Sketcher::SketchObject", "Sketch013")
sketch14.AttachmentSupport = (doc.getObject("XZ_Plane"), [""])
sketch14.MapMode = "FlatFace"
sketch14.addGeometry([
    Part.LineSegment(Vector(117.5, 10, 0), Vector(107.5, 10, 0)),  # 0
    Part.LineSegment(Vector(107.5, 10, 0), Vector(109.5, 13.4, 0)),  # 1
    Part.LineSegment(Vector(109.5, 13.4, 0), Vector(116.9, 13.4, 0)),  # 2
    Part.LineSegment(Vector(116.9, 13.4, 0), Vector(117.5, 14, 0)),  # 3
    Part.LineSegment(Vector(117.5, 14, 0), Vector(117.5, 10, 0)),  # 4
], False)
sketch14.addGeometry(Part.LineSegment(Vector(107.5, 10, 0), Vector(117.5, 10, 0)), True)  # axis
sketch14.addConstraint([
    Sketcher.Constraint("Coincident", 0, 2, 1, 1),
    Sketcher.Constraint("Coincident", 1, 2, 2, 1),
    Sketcher.Constraint("Coincident", 2, 2, 3, 1),
    Sketcher.Constraint("Coincident", 3, 2, 4, 1),
    Sketcher.Constraint("Coincident", 4, 2, 0, 1),
    Sketcher.Constraint("Horizontal", 0),
    Sketcher.Constraint("Horizontal", 2),
    Sketcher.Constraint("Vertical", 4),
    Sketcher.Constraint("Horizontal", 5),
    Sketcher.Constraint("Coincident", 5, 1, 0, 2),
    Sketcher.Constraint("Vertical", 3, 2, 5, 2),
    Sketcher.Constraint("Angle", 1, Q("59 deg")),
    Sketcher.Constraint("Angle", 3, Q("45 deg")),
    Sketcher.Constraint("DistanceY", -1, 1, 0, 2, 10.0),
    Sketcher.Constraint("DistanceX", 1, 2, 3, 2, 8.0),
    Sketcher.Constraint("DistanceX", -1, 1, 1, 2, 109.5),
    Sketcher.Constraint("DistanceY", -1, 1, 1, 2, 13.4),
    Sketcher.Constraint("DistanceX", 2, 1, 2, 2, 7.375),
])
groove8 = body.newObject("PartDesign::Groove", "Groove007")
groove8.Profile = sketch14
groove8.ReferenceAxis = (sketch14, ["Axis0"])
groove8.Angle = 360

# Sketch on XZ plane
sketch15 = body.newObject("Sketcher::SketchObject", "Sketch014")
sketch15.AttachmentSupport = (doc.getObject("XZ_Plane"), [""])
sketch15.MapMode = "FlatFace"
sketch15.AttachmentOffset = App.Placement(Vector(0, 0, 70), App.Rotation())
sketch15.addGeometry([
    Part.LineSegment(Vector(117.5, 10, 0), Vector(107.5, 10, 0)),  # 0
    Part.LineSegment(Vector(107.5, 10, 0), Vector(109.5, 13.4, 0)),  # 1
    Part.LineSegment(Vector(109.5, 13.4, 0), Vector(116.9, 13.4, 0)),  # 2
    Part.LineSegment(Vector(116.9, 13.4, 0), Vector(117.5, 14, 0)),  # 3
    Part.LineSegment(Vector(117.5, 14, 0), Vector(117.5, 10, 0)),  # 4
], False)
sketch15.addGeometry(Part.LineSegment(Vector(107.5, 10, 0), Vector(117.5, 10, 0)), True)  # axis
sketch15.addConstraint([
    Sketcher.Constraint("Coincident", 0, 2, 1, 1),
    Sketcher.Constraint("Coincident", 1, 2, 2, 1),
    Sketcher.Constraint("Coincident", 2, 2, 3, 1),
    Sketcher.Constraint("Coincident", 3, 2, 4, 1),
    Sketcher.Constraint("Coincident", 4, 2, 0, 1),
    Sketcher.Constraint("Horizontal", 0),
    Sketcher.Constraint("Horizontal", 2),
    Sketcher.Constraint("Vertical", 4),
    Sketcher.Constraint("Horizontal", 5),
    Sketcher.Constraint("Coincident", 5, 1, 0, 2),
    Sketcher.Constraint("Vertical", 3, 2, 5, 2),
    Sketcher.Constraint("Angle", 1, Q("59 deg")),
    Sketcher.Constraint("Angle", 3, Q("45 deg")),
    Sketcher.Constraint("DistanceY", -1, 1, 0, 2, 10.0),
    Sketcher.Constraint("DistanceX", 1, 2, 3, 2, 8.0),
    Sketcher.Constraint("DistanceX", -1, 1, 1, 2, 109.5),
    Sketcher.Constraint("DistanceY", -1, 1, 1, 2, 13.4),
    Sketcher.Constraint("DistanceX", 2, 1, 2, 2, 7.375),
])
groove9 = body.newObject("PartDesign::Groove", "Groove008")
groove9.Profile = sketch15
groove9.ReferenceAxis = (sketch15, ["Axis0"])
groove9.Angle = 360

# Sketch on XZ plane
sketch16 = body.newObject("Sketcher::SketchObject", "Sketch015")
sketch16.AttachmentSupport = (doc.getObject("XZ_Plane"), [""])
sketch16.MapMode = "FlatFace"
sketch16.AttachmentOffset = App.Placement(Vector(0, 0, 145), App.Rotation())
sketch16.addGeometry([
    Part.LineSegment(Vector(117.5, 10, 0), Vector(107.5, 10, 0)),  # 0
    Part.LineSegment(Vector(107.5, 10, 0), Vector(109.5, 13.4, 0)),  # 1
    Part.LineSegment(Vector(109.5, 13.4, 0), Vector(116.9, 13.4, 0)),  # 2
    Part.LineSegment(Vector(116.9, 13.4, 0), Vector(117.5, 14, 0)),  # 3
    Part.LineSegment(Vector(117.5, 14, 0), Vector(117.5, 10, 0)),  # 4
], False)
sketch16.addGeometry(Part.LineSegment(Vector(107.5, 10, 0), Vector(117.5, 10, 0)), True)  # axis
sketch16.addConstraint([
    Sketcher.Constraint("Coincident", 0, 2, 1, 1),
    Sketcher.Constraint("Coincident", 1, 2, 2, 1),
    Sketcher.Constraint("Coincident", 2, 2, 3, 1),
    Sketcher.Constraint("Coincident", 3, 2, 4, 1),
    Sketcher.Constraint("Coincident", 4, 2, 0, 1),
    Sketcher.Constraint("Horizontal", 0),
    Sketcher.Constraint("Horizontal", 2),
    Sketcher.Constraint("Vertical", 4),
    Sketcher.Constraint("Horizontal", 5),
    Sketcher.Constraint("Coincident", 5, 1, 0, 2),
    Sketcher.Constraint("Vertical", 3, 2, 5, 2),
    Sketcher.Constraint("Angle", 1, Q("59 deg")),
    Sketcher.Constraint("Angle", 3, Q("45 deg")),
    Sketcher.Constraint("DistanceY", -1, 1, 0, 2, 10.0),
    Sketcher.Constraint("DistanceX", 1, 2, 3, 2, 8.0),
    Sketcher.Constraint("DistanceX", -1, 1, 1, 2, 109.5),
    Sketcher.Constraint("DistanceY", -1, 1, 1, 2, 13.4),
    Sketcher.Constraint("DistanceX", 2, 1, 2, 2, 7.375),
])
groove10 = body.newObject("PartDesign::Groove", "Groove009")
groove10.Profile = sketch16
groove10.ReferenceAxis = (sketch16, ["Axis0"])
groove10.Angle = 360

doc.recompute()
